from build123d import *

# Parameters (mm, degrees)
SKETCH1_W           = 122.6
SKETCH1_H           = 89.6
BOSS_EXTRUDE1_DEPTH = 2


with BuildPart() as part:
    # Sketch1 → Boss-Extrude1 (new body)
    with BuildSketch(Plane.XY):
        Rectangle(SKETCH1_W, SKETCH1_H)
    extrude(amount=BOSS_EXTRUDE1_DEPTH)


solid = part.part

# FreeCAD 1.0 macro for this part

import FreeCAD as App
import Part
import Sketcher
from FreeCAD import Vector

doc = App.newDocument("Part")
body = doc.addObject("PartDesign::Body", "Body")

sketch1 = body.newObject("Sketcher::SketchObject", "Sketch")
sketch1.AttachmentSupport = (doc.getObject("XY_Plane"), [""])
sketch1.MapMode = "FlatFace"
sketch1.addGeometry([
    Part.LineSegment(Vector(-61, 45, 0), Vector(-61, -45, 0)),
    Part.LineSegment(Vector(-61, -45, 0), Vector(61, -45, 0)),
    Part.LineSegment(Vector(61, -45, 0), Vector(61, 45, 0)),
    Part.LineSegment(Vector(61, 45, 0), Vector(-61, 45, 0)),
], False)
sketch1.addConstraint([
    Sketcher.Constraint("Coincident", 0, 2, 1, 1),
    Sketcher.Constraint("Coincident", 1, 2, 2, 1),
    Sketcher.Constraint("Coincident", 2, 2, 3, 1),
    Sketcher.Constraint("Coincident", 3, 2, 0, 1),
    Sketcher.Constraint("Vertical", 0),
    Sketcher.Constraint("Horizontal", 1),
    Sketcher.Constraint("Vertical", 2),
    Sketcher.Constraint("Horizontal", 3),
    Sketcher.Constraint("Symmetric", 0, 2, 2, 2, -1, 1),
    Sketcher.Constraint("DistanceX", 1, 1, 1, 2, 122.6),
    Sketcher.Constraint("DistanceY", 0, 2, 0, 1, 89.6),
])
pad1 = body.newObject("PartDesign::Pad", "Pad")
pad1.Profile = sketch1
pad1.Length = 2

doc.recompute()
